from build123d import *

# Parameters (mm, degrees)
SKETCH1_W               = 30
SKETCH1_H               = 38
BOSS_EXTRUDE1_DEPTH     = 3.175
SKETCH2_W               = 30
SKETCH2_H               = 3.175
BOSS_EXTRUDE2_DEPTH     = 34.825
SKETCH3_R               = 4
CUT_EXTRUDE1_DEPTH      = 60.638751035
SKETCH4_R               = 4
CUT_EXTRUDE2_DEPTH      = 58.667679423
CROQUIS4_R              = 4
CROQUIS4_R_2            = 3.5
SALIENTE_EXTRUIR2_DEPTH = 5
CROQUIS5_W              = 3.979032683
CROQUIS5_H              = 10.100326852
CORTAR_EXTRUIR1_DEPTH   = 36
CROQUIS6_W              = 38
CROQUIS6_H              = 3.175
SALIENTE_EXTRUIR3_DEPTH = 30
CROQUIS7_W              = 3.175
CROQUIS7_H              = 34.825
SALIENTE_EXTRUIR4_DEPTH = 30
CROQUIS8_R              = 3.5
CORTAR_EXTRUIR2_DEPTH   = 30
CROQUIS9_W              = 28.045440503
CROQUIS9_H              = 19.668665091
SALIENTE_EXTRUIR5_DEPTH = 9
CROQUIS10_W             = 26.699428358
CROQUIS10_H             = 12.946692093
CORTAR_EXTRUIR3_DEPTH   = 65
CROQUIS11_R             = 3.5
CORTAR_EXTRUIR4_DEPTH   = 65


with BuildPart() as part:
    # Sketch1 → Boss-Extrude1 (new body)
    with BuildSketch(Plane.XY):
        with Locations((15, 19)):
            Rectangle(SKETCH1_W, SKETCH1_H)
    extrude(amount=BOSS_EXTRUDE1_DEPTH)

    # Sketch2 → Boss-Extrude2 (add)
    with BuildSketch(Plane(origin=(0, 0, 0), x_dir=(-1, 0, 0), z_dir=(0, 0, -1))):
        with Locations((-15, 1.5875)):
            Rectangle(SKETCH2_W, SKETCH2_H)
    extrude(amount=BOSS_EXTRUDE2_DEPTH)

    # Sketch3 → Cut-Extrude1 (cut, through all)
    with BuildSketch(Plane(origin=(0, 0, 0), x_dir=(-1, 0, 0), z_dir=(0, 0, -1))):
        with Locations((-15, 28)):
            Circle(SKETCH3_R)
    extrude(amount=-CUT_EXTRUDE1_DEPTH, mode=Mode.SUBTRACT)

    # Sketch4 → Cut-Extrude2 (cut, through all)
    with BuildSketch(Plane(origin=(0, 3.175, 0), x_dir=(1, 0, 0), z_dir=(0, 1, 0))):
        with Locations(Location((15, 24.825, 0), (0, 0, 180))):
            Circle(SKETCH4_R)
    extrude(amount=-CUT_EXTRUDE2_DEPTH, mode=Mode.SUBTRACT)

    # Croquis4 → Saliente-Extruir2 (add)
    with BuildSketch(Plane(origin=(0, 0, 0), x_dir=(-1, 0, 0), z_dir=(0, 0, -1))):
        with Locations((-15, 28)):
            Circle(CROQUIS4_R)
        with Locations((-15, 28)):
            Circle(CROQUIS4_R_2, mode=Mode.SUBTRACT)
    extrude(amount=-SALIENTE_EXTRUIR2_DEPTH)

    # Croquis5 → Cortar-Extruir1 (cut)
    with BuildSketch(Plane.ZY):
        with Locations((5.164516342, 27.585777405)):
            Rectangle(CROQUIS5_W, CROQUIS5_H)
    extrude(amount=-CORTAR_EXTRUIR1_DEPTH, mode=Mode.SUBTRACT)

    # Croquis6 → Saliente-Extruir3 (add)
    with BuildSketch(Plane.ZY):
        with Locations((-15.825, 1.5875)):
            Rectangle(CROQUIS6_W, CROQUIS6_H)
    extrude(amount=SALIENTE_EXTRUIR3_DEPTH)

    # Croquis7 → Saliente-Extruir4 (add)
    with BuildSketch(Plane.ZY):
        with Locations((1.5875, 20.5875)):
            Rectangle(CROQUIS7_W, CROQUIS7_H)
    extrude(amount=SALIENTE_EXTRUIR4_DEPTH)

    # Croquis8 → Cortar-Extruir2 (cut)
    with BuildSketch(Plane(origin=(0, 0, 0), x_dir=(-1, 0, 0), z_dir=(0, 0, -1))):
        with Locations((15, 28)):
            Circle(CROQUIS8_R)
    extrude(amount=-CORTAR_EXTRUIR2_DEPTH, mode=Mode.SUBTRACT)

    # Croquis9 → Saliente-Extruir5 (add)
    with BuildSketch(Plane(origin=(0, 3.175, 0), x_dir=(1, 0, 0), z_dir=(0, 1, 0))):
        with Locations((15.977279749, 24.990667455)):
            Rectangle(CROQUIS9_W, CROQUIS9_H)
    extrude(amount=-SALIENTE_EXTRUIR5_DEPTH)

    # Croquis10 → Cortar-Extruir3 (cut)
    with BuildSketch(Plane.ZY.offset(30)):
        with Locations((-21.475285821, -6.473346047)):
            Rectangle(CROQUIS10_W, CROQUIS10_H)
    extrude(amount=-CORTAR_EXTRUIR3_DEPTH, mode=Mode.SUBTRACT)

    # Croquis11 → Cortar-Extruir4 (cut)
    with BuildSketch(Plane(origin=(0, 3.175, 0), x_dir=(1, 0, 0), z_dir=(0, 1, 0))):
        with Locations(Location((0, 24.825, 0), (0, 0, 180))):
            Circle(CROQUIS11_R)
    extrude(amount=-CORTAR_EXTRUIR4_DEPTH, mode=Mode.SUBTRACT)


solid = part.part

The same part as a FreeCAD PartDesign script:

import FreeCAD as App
import Part
import Sketcher

V = App.Vector


def add_polygon(sketch, points):
    """Adds a closed chain of lines whose ends are joined by coincident constraints."""
    first, n = sketch.GeometryCount, len(points)
    for a, b in zip(points, points[1:] + points[:1]):
        sketch.addGeometry(Part.LineSegment(App.Vector(*a, 0), App.Vector(*b, 0)), False)
    for i in range(n):
        sketch.addConstraint(Sketcher.Constraint("Coincident", first + i, 2, first + (i + 1) % n, 1))

doc = App.newDocument("Part")
body = doc.addObject("PartDesign::Body", "Body")

# Sketch on XY plane
sketch1 = body.newObject("Sketcher::SketchObject", "Sketch")
sketch1.AttachmentSupport = (doc.getObject("XY_Plane"), [""])
sketch1.MapMode = "FlatFace"
add_polygon(sketch1, [(0, 38), (0, 0), (30, 0), (30, 38)])  # lines 0-3
sketch1.addConstraint([
    Sketcher.Constraint("Vertical", 0),
    Sketcher.Constraint("Horizontal", 1),
    Sketcher.Constraint("Vertical", 2),
    Sketcher.Constraint("Horizontal", 3),
    Sketcher.Constraint("Coincident", 0, 2, -1, 1),
    Sketcher.Constraint("DistanceX", 1, 1, 1, 2, 30.0),
    Sketcher.Constraint("DistanceY", 0, 2, 0, 1, 38.0),
])
pad1 = body.newObject("PartDesign::Pad", "Pad")
pad1.Profile = sketch1
pad1.Length = 3.175

# Sketch on XY plane
sketch2 = body.newObject("Sketcher::SketchObject", "Sketch001")
sketch2.AttachmentSupport = (doc.getObject("XY_Plane"), [""])
sketch2.MapMode = "FlatFace"
add_polygon(sketch2, [(30, 3.175), (30, 0), (0, 0), (0, 3.175)])  # lines 0-3
sketch2.addConstraint([
    Sketcher.Constraint("Vertical", 0),
    Sketcher.Constraint("Horizontal", 1),
    Sketcher.Constraint("Vertical", 2),
    Sketcher.Constraint("Horizontal", 3),
    Sketcher.Constraint("Coincident", 1, 2, -1, 1),
    Sketcher.Constraint("DistanceX", 1, 2, 1, 1, 30.0),
    Sketcher.Constraint("DistanceY", 0, 2, 0, 1, 3.175),
])
pad2 = body.newObject("PartDesign::Pad", "Pad001")
pad2.Profile = sketch2
pad2.Length = 34.825
pad2.Reversed = True

# Sketch on XY plane
sketch3 = body.newObject("Sketcher::SketchObject", "Sketch002")
sketch3.AttachmentSupport = (doc.getObject("XY_Plane"), [""])
sketch3.MapMode = "FlatFace"
sketch3.addGeometry(Part.Circle(V(15, 28, 0), V(0, 0, 1), 4), False)
sketch3.addConstraint([
    Sketcher.Constraint("Diameter", 0, 8.0),
    Sketcher.Constraint("DistanceX", -1, 1, 0, 3, 15.0),
    Sketcher.Constraint("DistanceY", -1, 1, 0, 3, 28.0),
])
pocket1 = body.newObject("PartDesign::Pocket", "Pocket")
pocket1.Profile = sketch3
pocket1.Type = "ThroughAll"
pocket1.Reversed = True

# Sketch on XZ plane
sketch4 = body.newObject("Sketcher::SketchObject", "Sketch003")
sketch4.AttachmentSupport = (doc.getObject("XZ_Plane"), [""])
sketch4.MapMode = "FlatFace"
sketch4.AttachmentOffset = App.Placement(V(0, 0, -3.175), App.Rotation())
sketch4.addGeometry(Part.Circle(V(15, -24.825, 0), V(0, 0, 1), 4), False)
sketch4.addConstraint([
    Sketcher.Constraint("Diameter", 0, 8.0),
    Sketcher.Constraint("DistanceX", -1, 1, 0, 3, 15.0),
    Sketcher.Constraint("DistanceY", 0, 3, -1, 1, 24.825),
])
pocket2 = body.newObject("PartDesign::Pocket", "Pocket001")
pocket2.Profile = sketch4
pocket2.Type = "ThroughAll"
pocket2.Reversed = True

# Sketch on XY plane
sketch5 = body.newObject("Sketcher::SketchObject", "Sketch004")
sketch5.AttachmentSupport = (doc.getObject("XY_Plane"), [""])
sketch5.MapMode = "FlatFace"
sketch5.addGeometry([
    Part.Circle(V(15, 28, 0), V(0, 0, 1), 4),
    Part.Circle(V(15, 28, 0), V(0, 0, 1), 3.5),
], False)
sketch5.addConstraint([
    Sketcher.Constraint("Coincident", 1, 3, 0, 3),
    Sketcher.Constraint("Diameter", 0, 8.0),
    Sketcher.Constraint("Diameter", 1, 7.0),
    Sketcher.Constraint("DistanceX", -1, 1, 0, 3, 15.0),
    Sketcher.Constraint("DistanceY", -1, 1, 0, 3, 28.0),
])
pad3 = body.newObject("PartDesign::Pad", "Pad002")
pad3.Profile = sketch5
pad3.Length = 5

# Sketch on YZ plane
sketch6 = body.newObject("Sketcher::SketchObject", "Sketch005")
sketch6.AttachmentSupport = (doc.getObject("YZ_Plane"), [""])
sketch6.MapMode = "FlatFace"
add_polygon(sketch6, [(32.635941, 3.175), (22.535614, 3.175), (22.535614, 7.154033), (32.635941, 7.154033)])  # lines 0-3
sketch6.addConstraint([
    Sketcher.Constraint("Horizontal", 0),
    Sketcher.Constraint("Vertical", 1),
    Sketcher.Constraint("Horizontal", 2),
    Sketcher.Constraint("Vertical", 3),
    Sketcher.Constraint("DistanceY", -1, 1, 0, 2, 3.175),
    Sketcher.Constraint("DistanceX", 0, 2, 0, 1, 10.100327),
    Sketcher.Constraint("DistanceY", 1, 1, 1, 2, 3.979033),
    Sketcher.Constraint("DistanceX", -1, 1, 2, 2, 32.635941),
])
pocket3 = body.newObject("PartDesign::Pocket", "Pocket002")
pocket3.Profile = sketch6
pocket3.Length = 36
pocket3.Reversed = True

# Sketch on YZ plane
sketch7 = body.newObject("Sketcher::SketchObject", "Sketch006")
sketch7.AttachmentSupport = (doc.getObject("YZ_Plane"), [""])
sketch7.MapMode = "FlatFace"
add_polygon(sketch7, [(3.175, -34.825), (0, -34.825), (0, 3.175), (3.175, 3.175)])  # lines 0-3
sketch7.addConstraint([
    Sketcher.Constraint("Horizontal", 0),
    Sketcher.Constraint("Vertical", 1),
    Sketcher.Constraint("Horizontal", 2),
    Sketcher.Constraint("Vertical", 3),
    Sketcher.Constraint("PointOnObject", 0, 2, -2),
    Sketcher.Constraint("DistanceY", 1, 1, 1, 2, 38.0),
    Sketcher.Constraint("DistanceX", 0, 2, 0, 1, 3.175),
    Sketcher.Constraint("DistanceY", 0, 2, -1, 1, 34.825),
])
pad4 = body.newObject("PartDesign::Pad", "Pad003")
pad4.Profile = sketch7
pad4.Length = 30
pad4.Reversed = True

# Sketch on YZ plane
sketch8 = body.newObject("Sketcher::SketchObject", "Sketch007")
sketch8.AttachmentSupport = (doc.getObject("YZ_Plane"), [""])
sketch8.MapMode = "FlatFace"
add_polygon(sketch8, [(38, 0), (3.175, 0), (3.175, 3.175), (38, 3.175)])  # lines 0-3
sketch8.addConstraint([
    Sketcher.Constraint("Horizontal", 0),
    Sketcher.Constraint("Vertical", 1),
    Sketcher.Constraint("Horizontal", 2),
    Sketcher.Constraint("Vertical", 3),
    Sketcher.Constraint("PointOnObject", 0, 2, -1),
    Sketcher.Constraint("DistanceX", -1, 1, 2, 2, 38.0),
    Sketcher.Constraint("DistanceX", 0, 2, 0, 1, 34.825),
    Sketcher.Constraint("DistanceY", 1, 1, 1, 2, 3.175),
])
pad5 = body.newObject("PartDesign::Pad", "Pad004")
pad5.Profile = sketch8
pad5.Length = 30
pad5.Reversed = True

# Sketch on XY plane
sketch9 = body.newObject("Sketcher::SketchObject", "Sketch008")
sketch9.AttachmentSupport = (doc.getObject("XY_Plane"), [""])
sketch9.MapMode = "FlatFace"
sketch9.addGeometry(Part.Circle(V(-15, 28, 0), V(0, 0, 1), 3.5), False)
sketch9.addConstraint([
    Sketcher.Constraint("Diameter", 0, 7.0),
    Sketcher.Constraint("DistanceX", 0, 3, -1, 1, 15.0),
    Sketcher.Constraint("DistanceY", -1, 1, 0, 3, 28.0),
])
pocket4 = body.newObject("PartDesign::Pocket", "Pocket003")
pocket4.Profile = sketch9
pocket4.Length = 30
pocket4.Reversed = True

# Sketch on XZ plane
sketch10 = body.newObject("Sketcher::SketchObject", "Sketch009")
sketch10.AttachmentSupport = (doc.getObject("XZ_Plane"), [""])
sketch10.MapMode = "FlatFace"
sketch10.AttachmentOffset = App.Placement(V(0, 0, -3.175), App.Rotation())
add_polygon(sketch10, [(1.954559, -34.825), (1.954559, -15.156335), (30, -15.156335), (30, -34.825)])  # lines 0-3
sketch10.addConstraint([
    Sketcher.Constraint("Vertical", 0),
    Sketcher.Constraint("Horizontal", 1),
    Sketcher.Constraint("Vertical", 2),
    Sketcher.Constraint("Horizontal", 3),
    Sketcher.Constraint("DistanceX", -1, 1, 1, 2, 30.0),
    Sketcher.Constraint("DistanceY", 2, 2, -1, 1, 34.825),
    Sketcher.Constraint("DistanceX", 1, 1, 1, 2, 28.045441),
    Sketcher.Constraint("DistanceY", 0, 1, 0, 2, 19.668665),
])
pad6 = body.newObject("PartDesign::Pad", "Pad005")
pad6.Profile = sketch10
pad6.Length = 9

# Sketch on YZ plane
sketch11 = body.newObject("Sketcher::SketchObject", "Sketch010")
sketch11.AttachmentSupport = (doc.getObject("YZ_Plane"), [""])
sketch11.MapMode = "FlatFace"
sketch11.AttachmentOffset = App.Placement(V(0, 0, -30), App.Rotation())
add_polygon(sketch11, [(0, -34.825), (-12.946692, -34.825), (-12.946692, -8.125572), (0, -8.125572)])  # lines 0-3
sketch11.addConstraint([
    Sketcher.Constraint("Horizontal", 0),
    Sketcher.Constraint("Vertical", 1),
    Sketcher.Constraint("Horizontal", 2),
    Sketcher.Constraint("Vertical", 3),
    Sketcher.Constraint("PointOnObject", 2, 2, -2),
    Sketcher.Constraint("DistanceY", 0, 2, -1, 1, 34.825),
    Sketcher.Constraint("DistanceY", 1, 1, 1, 2, 26.699428),
    Sketcher.Constraint("DistanceX", 0, 2, 0, 1, 12.946692),
])
pocket5 = body.newObject("PartDesign::Pocket", "Pocket004")
pocket5.Profile = sketch11
pocket5.Length = 65
pocket5.Reversed = True

# Sketch on XZ plane
sketch12 = body.newObject("Sketcher::SketchObject", "Sketch011")
sketch12.AttachmentSupport = (doc.getObject("XZ_Plane"), [""])
sketch12.MapMode = "FlatFace"
sketch12.AttachmentOffset = App.Placement(V(0, 0, -3.175), App.Rotation())
sketch12.addGeometry(Part.Circle(V(0, -24.825, 0), V(0, 0, 1), 3.5), False)
sketch12.addConstraint([
    Sketcher.Constraint("PointOnObject", 0, 3, -2),
    Sketcher.Constraint("Diameter", 0, 7.0),
    Sketcher.Constraint("DistanceY", 0, 3, -1, 1, 24.825),
])
pocket6 = body.newObject("PartDesign::Pocket", "Pocket005")
pocket6.Profile = sketch12
pocket6.Length = 65
pocket6.Reversed = True

doc.recompute()
